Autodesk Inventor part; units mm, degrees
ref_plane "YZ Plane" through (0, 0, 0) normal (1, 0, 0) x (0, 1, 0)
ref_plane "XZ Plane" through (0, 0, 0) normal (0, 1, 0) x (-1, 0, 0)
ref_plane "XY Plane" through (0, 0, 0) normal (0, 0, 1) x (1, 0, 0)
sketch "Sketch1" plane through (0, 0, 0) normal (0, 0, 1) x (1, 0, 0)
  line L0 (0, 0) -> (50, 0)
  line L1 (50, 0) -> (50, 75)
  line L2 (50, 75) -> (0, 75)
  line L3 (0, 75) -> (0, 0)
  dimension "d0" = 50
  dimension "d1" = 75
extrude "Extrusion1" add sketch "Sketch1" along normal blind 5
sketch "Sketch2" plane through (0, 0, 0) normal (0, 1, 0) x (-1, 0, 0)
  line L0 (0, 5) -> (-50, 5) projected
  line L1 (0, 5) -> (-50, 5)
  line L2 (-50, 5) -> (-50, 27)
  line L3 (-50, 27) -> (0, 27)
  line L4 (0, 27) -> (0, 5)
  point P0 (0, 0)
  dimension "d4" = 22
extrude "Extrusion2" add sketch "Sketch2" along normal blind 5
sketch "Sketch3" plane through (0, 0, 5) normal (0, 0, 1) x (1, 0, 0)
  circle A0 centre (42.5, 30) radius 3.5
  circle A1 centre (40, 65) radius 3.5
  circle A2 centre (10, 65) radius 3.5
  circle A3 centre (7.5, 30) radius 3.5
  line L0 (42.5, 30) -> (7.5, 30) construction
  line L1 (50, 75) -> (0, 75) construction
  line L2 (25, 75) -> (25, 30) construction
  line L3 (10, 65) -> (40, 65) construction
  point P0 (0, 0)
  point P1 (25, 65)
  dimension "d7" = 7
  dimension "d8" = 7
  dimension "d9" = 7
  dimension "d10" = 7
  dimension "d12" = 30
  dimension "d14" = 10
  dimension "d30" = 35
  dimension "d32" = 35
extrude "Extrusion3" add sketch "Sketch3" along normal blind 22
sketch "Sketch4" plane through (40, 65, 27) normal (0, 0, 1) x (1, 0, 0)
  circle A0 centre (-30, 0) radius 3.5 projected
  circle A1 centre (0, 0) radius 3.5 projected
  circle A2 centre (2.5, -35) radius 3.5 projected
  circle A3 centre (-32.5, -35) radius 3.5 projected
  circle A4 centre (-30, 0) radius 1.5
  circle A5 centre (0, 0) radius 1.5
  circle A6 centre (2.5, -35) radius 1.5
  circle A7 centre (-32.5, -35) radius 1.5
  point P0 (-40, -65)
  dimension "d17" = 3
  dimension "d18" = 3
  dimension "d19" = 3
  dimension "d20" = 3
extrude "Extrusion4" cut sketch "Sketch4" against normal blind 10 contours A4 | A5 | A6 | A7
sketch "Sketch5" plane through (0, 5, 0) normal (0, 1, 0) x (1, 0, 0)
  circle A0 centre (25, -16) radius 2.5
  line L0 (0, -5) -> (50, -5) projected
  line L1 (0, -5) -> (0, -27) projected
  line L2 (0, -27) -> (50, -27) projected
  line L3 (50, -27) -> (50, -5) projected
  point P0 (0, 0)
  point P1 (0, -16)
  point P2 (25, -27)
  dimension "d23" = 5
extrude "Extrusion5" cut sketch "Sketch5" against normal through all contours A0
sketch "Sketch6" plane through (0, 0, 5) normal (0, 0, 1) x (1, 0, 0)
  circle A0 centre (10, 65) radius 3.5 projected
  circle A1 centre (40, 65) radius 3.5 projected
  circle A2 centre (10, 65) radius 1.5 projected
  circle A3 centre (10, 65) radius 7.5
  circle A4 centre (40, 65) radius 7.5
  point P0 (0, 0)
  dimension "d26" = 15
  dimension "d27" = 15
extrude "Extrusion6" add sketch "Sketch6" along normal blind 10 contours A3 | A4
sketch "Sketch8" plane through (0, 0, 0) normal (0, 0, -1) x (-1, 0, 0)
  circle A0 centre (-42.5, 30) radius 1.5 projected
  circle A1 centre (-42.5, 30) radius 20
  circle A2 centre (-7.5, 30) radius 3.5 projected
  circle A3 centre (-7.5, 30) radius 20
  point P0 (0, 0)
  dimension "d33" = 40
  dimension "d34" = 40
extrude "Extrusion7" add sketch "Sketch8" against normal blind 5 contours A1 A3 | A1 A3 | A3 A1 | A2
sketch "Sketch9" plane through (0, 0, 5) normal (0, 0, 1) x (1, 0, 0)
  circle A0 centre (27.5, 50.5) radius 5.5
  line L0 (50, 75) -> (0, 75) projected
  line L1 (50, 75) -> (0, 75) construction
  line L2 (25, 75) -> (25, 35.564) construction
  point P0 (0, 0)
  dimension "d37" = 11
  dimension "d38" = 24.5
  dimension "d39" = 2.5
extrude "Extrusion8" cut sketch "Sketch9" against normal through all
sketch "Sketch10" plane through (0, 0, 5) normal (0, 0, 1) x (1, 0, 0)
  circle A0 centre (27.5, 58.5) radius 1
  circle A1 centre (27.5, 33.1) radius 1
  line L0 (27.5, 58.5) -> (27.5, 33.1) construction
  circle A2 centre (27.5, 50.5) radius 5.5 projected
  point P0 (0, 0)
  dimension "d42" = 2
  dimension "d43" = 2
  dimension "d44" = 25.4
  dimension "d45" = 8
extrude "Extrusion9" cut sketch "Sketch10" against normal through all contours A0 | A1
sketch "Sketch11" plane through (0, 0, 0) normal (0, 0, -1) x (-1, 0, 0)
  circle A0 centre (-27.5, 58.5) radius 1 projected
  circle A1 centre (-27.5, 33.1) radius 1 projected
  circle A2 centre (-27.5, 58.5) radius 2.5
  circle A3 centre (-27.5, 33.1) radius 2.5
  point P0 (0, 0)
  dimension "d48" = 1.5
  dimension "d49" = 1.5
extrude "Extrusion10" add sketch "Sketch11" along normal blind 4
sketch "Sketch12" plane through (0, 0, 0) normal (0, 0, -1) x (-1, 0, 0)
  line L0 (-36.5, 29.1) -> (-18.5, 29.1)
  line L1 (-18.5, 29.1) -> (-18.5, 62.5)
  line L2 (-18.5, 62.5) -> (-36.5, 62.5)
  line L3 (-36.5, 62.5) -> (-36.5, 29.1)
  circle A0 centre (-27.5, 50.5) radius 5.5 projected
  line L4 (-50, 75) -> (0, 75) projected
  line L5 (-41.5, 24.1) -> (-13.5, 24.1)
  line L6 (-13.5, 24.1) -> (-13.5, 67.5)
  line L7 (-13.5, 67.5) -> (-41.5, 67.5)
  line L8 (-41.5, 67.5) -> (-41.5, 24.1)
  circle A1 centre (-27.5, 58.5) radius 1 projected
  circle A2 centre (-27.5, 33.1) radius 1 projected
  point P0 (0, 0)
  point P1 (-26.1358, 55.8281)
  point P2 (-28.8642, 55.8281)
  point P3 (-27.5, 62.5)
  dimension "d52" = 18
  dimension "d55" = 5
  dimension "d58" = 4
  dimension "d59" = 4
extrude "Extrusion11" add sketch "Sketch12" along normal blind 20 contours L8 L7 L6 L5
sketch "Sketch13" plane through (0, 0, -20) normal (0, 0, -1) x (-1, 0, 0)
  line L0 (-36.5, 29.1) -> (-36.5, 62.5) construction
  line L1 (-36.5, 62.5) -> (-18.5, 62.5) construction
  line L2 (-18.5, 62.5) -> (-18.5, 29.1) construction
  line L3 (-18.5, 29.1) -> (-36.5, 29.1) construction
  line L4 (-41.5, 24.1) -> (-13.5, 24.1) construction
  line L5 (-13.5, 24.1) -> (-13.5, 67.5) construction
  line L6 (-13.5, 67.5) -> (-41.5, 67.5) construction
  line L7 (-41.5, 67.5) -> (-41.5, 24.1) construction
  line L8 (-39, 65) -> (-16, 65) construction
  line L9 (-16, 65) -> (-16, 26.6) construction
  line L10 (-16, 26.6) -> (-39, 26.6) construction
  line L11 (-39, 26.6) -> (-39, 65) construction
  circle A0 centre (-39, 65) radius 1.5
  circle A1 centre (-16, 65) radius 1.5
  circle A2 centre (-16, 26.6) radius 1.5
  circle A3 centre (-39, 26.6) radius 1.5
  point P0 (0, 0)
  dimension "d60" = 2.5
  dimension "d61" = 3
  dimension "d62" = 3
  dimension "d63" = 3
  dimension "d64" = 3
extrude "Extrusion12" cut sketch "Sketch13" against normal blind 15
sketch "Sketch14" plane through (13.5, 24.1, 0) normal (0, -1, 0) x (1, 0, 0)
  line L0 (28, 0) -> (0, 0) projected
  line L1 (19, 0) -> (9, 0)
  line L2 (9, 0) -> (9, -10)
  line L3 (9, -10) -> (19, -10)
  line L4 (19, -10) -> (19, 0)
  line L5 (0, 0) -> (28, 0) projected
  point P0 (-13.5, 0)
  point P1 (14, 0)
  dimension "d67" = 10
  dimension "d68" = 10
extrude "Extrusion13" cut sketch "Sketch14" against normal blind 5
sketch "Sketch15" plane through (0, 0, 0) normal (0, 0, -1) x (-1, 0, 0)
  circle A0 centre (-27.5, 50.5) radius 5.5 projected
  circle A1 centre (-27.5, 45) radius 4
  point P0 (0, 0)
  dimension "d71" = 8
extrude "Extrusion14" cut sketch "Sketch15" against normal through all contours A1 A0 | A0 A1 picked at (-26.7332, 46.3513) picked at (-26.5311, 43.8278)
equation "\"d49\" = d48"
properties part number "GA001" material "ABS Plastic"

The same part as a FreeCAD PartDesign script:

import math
import FreeCAD as App
import Part
import Sketcher
Q = App.Units.Quantity

doc = App.newDocument("Part")
body = doc.addObject("PartDesign::Body", "Body")

sketch1 = doc.addObject("Sketcher::SketchObject", "Sketch")
body.addObject(sketch1)
sketch1.AttachmentSupport = (doc.XY_Plane, [""])
sketch1.MapMode = "FlatFace"
sketch1.addGeometry([
    Part.LineSegment(App.Vector(0, 75, 0), App.Vector(0, 0, 0)),
    Part.LineSegment(App.Vector(0, 0, 0), App.Vector(50, 0, 0)),
    Part.LineSegment(App.Vector(50, 0, 0), App.Vector(50, 75, 0)),
    Part.LineSegment(App.Vector(50, 75, 0), App.Vector(0, 75, 0)),
], False)
sketch1.addConstraint([
    Sketcher.Constraint("Coincident", 0, 2, 1, 1),
    Sketcher.Constraint("Coincident", 1, 2, 2, 1),
    Sketcher.Constraint("Coincident", 2, 2, 3, 1),
    Sketcher.Constraint("Coincident", 3, 2, 0, 1),
    Sketcher.Constraint("Vertical", 0),
    Sketcher.Constraint("Horizontal", 1),
    Sketcher.Constraint("Vertical", 2),
    Sketcher.Constraint("Horizontal", 3),
    Sketcher.Constraint("Coincident", 0, 2, -1, 1),
    Sketcher.Constraint("DistanceX", 1, 1, 1, 2, Q("50 mm")),
    Sketcher.Constraint("DistanceY", 0, 2, 0, 1, Q("75 mm")),
])
pad1 = doc.addObject("PartDesign::Pad", "Pad")
body.addObject(pad1)
pad1.Profile = sketch1
pad1.Length = 5

sketch2 = doc.addObject("Sketcher::SketchObject", "Sketch001")
body.addObject(sketch2)
sketch2.AttachmentSupport = (doc.XZ_Plane, [""])
sketch2.MapMode = "FlatFace"
sketch2.addGeometry([
    Part.LineSegment(App.Vector(50, 5, 0), App.Vector(0, 5, 0)),
    Part.LineSegment(App.Vector(0, 5, 0), App.Vector(0, 27, 0)),
    Part.LineSegment(App.Vector(0, 27, 0), App.Vector(50, 27, 0)),
    Part.LineSegment(App.Vector(50, 27, 0), App.Vector(50, 5, 0)),
], False)
sketch2.addConstraint([
    Sketcher.Constraint("Coincident", 0, 2, 1, 1),
    Sketcher.Constraint("Coincident", 1, 2, 2, 1),
    Sketcher.Constraint("Coincident", 2, 2, 3, 1),
    Sketcher.Constraint("Coincident", 3, 2, 0, 1),
    Sketcher.Constraint("Horizontal", 0),
    Sketcher.Constraint("Vertical", 1),
    Sketcher.Constraint("Horizontal", 2),
    Sketcher.Constraint("Vertical", 3),
    Sketcher.Constraint("PointOnObject", 0, 2, -2),
    Sketcher.Constraint("DistanceY", 1, 1, 1, 2, Q("22 mm")),
    Sketcher.Constraint("DistanceX", 0, 2, 0, 1, Q("50 mm")),
    Sketcher.Constraint("DistanceY", -1, 1, 0, 2, Q("5 mm")),
])
pad2 = doc.addObject("PartDesign::Pad", "Pad001")
body.addObject(pad2)
pad2.Profile = sketch2
pad2.Length = 5
pad2.Reversed = True

sketch3 = doc.addObject("Sketcher::SketchObject", "Sketch002")
body.addObject(sketch3)
sketch3.AttachmentSupport = (doc.XY_Plane, [""])
sketch3.MapMode = "FlatFace"
sketch3.AttachmentOffset = App.Placement(App.Vector(0, 0, 5), App.Rotation())
sketch3.addGeometry([
    Part.Circle(App.Vector(42.5, 30, 0), App.Vector(0, 0, 1), 3.5),
    Part.Circle(App.Vector(40, 65, 0), App.Vector(0, 0, 1), 3.5),
    Part.Circle(App.Vector(10, 65, 0), App.Vector(0, 0, 1), 3.5),
    Part.Circle(App.Vector(7.5, 30, 0), App.Vector(0, 0, 1), 3.5),
], False)
sketch3.addConstraint([
    Sketcher.Constraint("Equal", 0, 1),
    Sketcher.Constraint("Equal", 1, 2),
    Sketcher.Constraint("Equal", 2, 3),
    Sketcher.Constraint("Horizontal", 1, 3, 2, 3),
    Sketcher.Constraint("Horizontal", 0, 3, 3, 3),
    Sketcher.Constraint("Diameter", 0, Q("7 mm")),
    Sketcher.Constraint("DistanceY", -1, 1, 0, 3, Q("30 mm")),
    Sketcher.Constraint("DistanceX", -1, 1, 2, 3, Q("10 mm")),
    Sketcher.Constraint("DistanceY", 0, 3, 1, 3, Q("35 mm")),
    Sketcher.Constraint("DistanceX", 2, 3, 1, 3, Q("30 mm")),
    Sketcher.Constraint("DistanceX", 3, 3, 0, 3, Q("35 mm")),
    Sketcher.Constraint("DistanceX", -1, 1, 0, 3, Q("42.5 mm")),
])
pad3 = doc.addObject("PartDesign::Pad", "Pad002")
body.addObject(pad3)
pad3.Profile = sketch3
pad3.Length = 22

sketch4 = doc.addObject("Sketcher::SketchObject", "Sketch003")
body.addObject(sketch4)
sketch4.AttachmentSupport = (doc.XY_Plane, [""])
sketch4.MapMode = "FlatFace"
sketch4.AttachmentOffset = App.Placement(App.Vector(0, 0, 27), App.Rotation())
sketch4.addGeometry([
    Part.Circle(App.Vector(10, 65, 0), App.Vector(0, 0, 1), 1.5),
    Part.Circle(App.Vector(40, 65, 0), App.Vector(0, 0, 1), 1.5),
    Part.Circle(App.Vector(42.5, 30, 0), App.Vector(0, 0, 1), 1.5),
    Part.Circle(App.Vector(7.5, 30, 0), App.Vector(0, 0, 1), 1.5),
], False)
sketch4.addConstraint([
    Sketcher.Constraint("Equal", 0, 1),
    Sketcher.Constraint("Equal", 1, 2),
    Sketcher.Constraint("Equal", 2, 3),
    Sketcher.Constraint("Horizontal", 0, 3, 1, 3),
    Sketcher.Constraint("Horizontal", 2, 3, 3, 3),
    Sketcher.Constraint("Diameter", 0, Q("3 mm")),
    Sketcher.Constraint("DistanceX", -1, 1, 0, 3, Q("10 mm")),
    Sketcher.Constraint("DistanceY", -1, 1, 0, 3, Q("65 mm")),
    Sketcher.Constraint("DistanceX", -1, 1, 1, 3, Q("40 mm")),
    Sketcher.Constraint("DistanceY", -1, 1, 2, 3, Q("30 mm")),
    Sketcher.Constraint("DistanceX", 3, 3, 2, 3, Q("35 mm")),
    Sketcher.Constraint("DistanceX", -1, 1, 2, 3, Q("42.5 mm")),
])
pocket1 = doc.addObject("PartDesign::Pocket", "Pocket")
body.addObject(pocket1)
pocket1.Profile = sketch4
pocket1.Length = 10

sketch5 = doc.addObject("Sketcher::SketchObject", "Sketch004")
body.addObject(sketch5)
sketch5.AttachmentSupport = (doc.XZ_Plane, [""])
sketch5.MapMode = "FlatFace"
sketch5.AttachmentOffset = App.Placement(App.Vector(0, 0, -5), App.Rotation())
sketch5.addGeometry(Part.Circle(App.Vector(25, 16, 0), App.Vector(0, 0, 1), 2.5), False)
sketch5.addConstraint([
    Sketcher.Constraint("Diameter", 0, Q("5 mm")),
    Sketcher.Constraint("DistanceX", -1, 1, 0, 3, Q("25 mm")),
    Sketcher.Constraint("DistanceY", -1, 1, 0, 3, Q("16 mm")),
])
pocket2 = doc.addObject("PartDesign::Pocket", "Pocket001")
body.addObject(pocket2)
pocket2.Profile = sketch5
pocket2.Type = "ThroughAll"
pocket2.Reversed = True

sketch6 = doc.addObject("Sketcher::SketchObject", "Sketch005")
body.addObject(sketch6)
sketch6.AttachmentSupport = (doc.XY_Plane, [""])
sketch6.MapMode = "FlatFace"
sketch6.AttachmentOffset = App.Placement(App.Vector(0, 0, 5), App.Rotation())
sketch6.addGeometry([
    Part.Circle(App.Vector(10, 65, 0), App.Vector(0, 0, 1), 7.5),
    Part.Circle(App.Vector(10, 65, 0), App.Vector(0, 0, 1), 3.5),
    Part.Circle(App.Vector(40, 65, 0), App.Vector(0, 0, 1), 7.5),
    Part.Circle(App.Vector(40, 65, 0), App.Vector(0, 0, 1), 3.5),
], False)
sketch6.addConstraint([
    Sketcher.Constraint("Coincident", 1, 3, 0, 3),
    Sketcher.Constraint("Coincident", 3, 3, 2, 3),
    Sketcher.Constraint("Equal", 0, 2),
    Sketcher.Constraint("Equal", 1, 3),
    Sketcher.Constraint("Horizontal", 1, 3, 2, 3),
    Sketcher.Constraint("Diameter", 0, Q("15 mm")),
    Sketcher.Constraint("Diameter", 1, Q("7 mm")),
    Sketcher.Constraint("DistanceX", -1, 1, 0, 3, Q("10 mm")),
    Sketcher.Constraint("DistanceY", -1, 1, 0, 3, Q("65 mm")),
    Sketcher.Constraint("DistanceX", -1, 1, 2, 3, Q("40 mm")),
])
pad4 = doc.addObject("PartDesign::Pad", "Pad003")
body.addObject(pad4)
pad4.Profile = sketch6
pad4.Length = 10

sketch7 = doc.addObject("Sketcher::SketchObject", "Sketch006")
body.addObject(sketch7)
sketch7.AttachmentSupport = (doc.XY_Plane, [""])
sketch7.MapMode = "FlatFace"
sketch7.addGeometry([
    Part.ArcOfCircle(Part.Circle(App.Vector(42.5, 30, 0), App.Vector(0, 0, 1), 20), math.radians(-151), math.radians(151)),
    Part.ArcOfCircle(Part.Circle(App.Vector(7.5, 30, 0), App.Vector(0, 0, 1), 20), math.radians(29), math.radians(331)),
    Part.Circle(App.Vector(42.5, 30, 0), App.Vector(0, 0, 1), 1.5),
], False)
sketch7.addConstraint([
    Sketcher.Constraint("Coincident", 0, 1, 1, 2),
    Sketcher.Constraint("Coincident", 1, 1, 0, 2),
    Sketcher.Constraint("Coincident", 2, 3, 0, 3),
    Sketcher.Constraint("Equal", 0, 1),
    Sketcher.Constraint("Horizontal", 0, 3, 1, 3),
    Sketcher.Constraint("Radius", 0, Q("20 mm")),
    Sketcher.Constraint("Diameter", 2, Q("3 mm")),
    Sketcher.Constraint("DistanceY", -1, 1, 0, 3, Q("30 mm")),
    Sketcher.Constraint("DistanceX", -1, 1, 0, 1, Q("25 mm")),
    Sketcher.Constraint("DistanceX", 1, 3, 0, 3, Q("35 mm")),
])
pad5 = doc.addObject("PartDesign::Pad", "Pad004")
body.addObject(pad5)
pad5.Profile = sketch7
pad5.Length = 5

sketch8 = doc.addObject("Sketcher::SketchObject", "Sketch007")
body.addObject(sketch8)
sketch8.AttachmentSupport = (doc.XY_Plane, [""])
sketch8.MapMode = "FlatFace"
sketch8.AttachmentOffset = App.Placement(App.Vector(0, 0, 5), App.Rotation())
sketch8.addGeometry(Part.Circle(App.Vector(28, 50, 0), App.Vector(0, 0, 1), 6), False)
sketch8.addConstraint([
    Sketcher.Constraint("Diameter", 0, Q("11 mm")),
    Sketcher.Constraint("DistanceX", -1, 1, 0, 3, Q("27.5 mm")),
    Sketcher.Constraint("DistanceY", -1, 1, 0, 3, Q("50.5 mm")),
])
pocket3 = doc.addObject("PartDesign::Pocket", "Pocket002")
body.addObject(pocket3)
pocket3.Profile = sketch8
pocket3.Type = "ThroughAll"

sketch9 = doc.addObject("Sketcher::SketchObject", "Sketch008")
body.addObject(sketch9)
sketch9.AttachmentSupport = (doc.XY_Plane, [""])
sketch9.MapMode = "FlatFace"
sketch9.AttachmentOffset = App.Placement(App.Vector(0, 0, 5), App.Rotation())
sketch9.addGeometry([
    Part.Circle(App.Vector(27.5, 58.5, 0), App.Vector(0, 0, 1), 1),
    Part.Circle(App.Vector(27.5, 33.1, 0), App.Vector(0, 0, 1), 1),
], False)
sketch9.addConstraint([
    Sketcher.Constraint("Equal", 0, 1),
    Sketcher.Constraint("Vertical", 0, 3, 1, 3),
    Sketcher.Constraint("Diameter", 0, Q("2 mm")),
    Sketcher.Constraint("DistanceY", 1, 3, 0, 3, Q("25.4 mm")),
    Sketcher.Constraint("DistanceX", -1, 1, 0, 3, Q("27.5 mm")),
    Sketcher.Constraint("DistanceY", -1, 1, 0, 3, Q("58.5 mm")),
])
pocket4 = doc.addObject("PartDesign::Pocket", "Pocket003")
body.addObject(pocket4)
pocket4.Profile = sketch9
pocket4.Type = "ThroughAll"

sketch10 = doc.addObject("Sketcher::SketchObject", "Sketch009")
body.addObject(sketch10)
sketch10.AttachmentSupport = (doc.XY_Plane, [""])
sketch10.MapMode = "FlatFace"
sketch10.addGeometry([
    Part.Circle(App.Vector(27.5, 58.5, 0), App.Vector(0, 0, 1), 2.5),
    Part.Circle(App.Vector(27.5, 58.5, 0), App.Vector(0, 0, 1), 1),
    Part.Circle(App.Vector(27.5, 33.1, 0), App.Vector(0, 0, 1), 2.5),
    Part.Circle(App.Vector(27.5, 33.1, 0), App.Vector(0, 0, 1), 1),
], False)
sketch10.addConstraint([
    Sketcher.Constraint("Coincident", 1, 3, 0, 3),
    Sketcher.Constraint("Coincident", 3, 3, 2, 3),
    Sketcher.Constraint("Equal", 0, 2),
    Sketcher.Constraint("Equal", 1, 3),
    Sketcher.Constraint("Vertical", 1, 3, 2, 3),
    Sketcher.Constraint("Diameter", 0, Q("5 mm")),
    Sketcher.Constraint("Diameter", 1, Q("2 mm")),
    Sketcher.Constraint("DistanceX", -1, 1, 0, 3, Q("27.5 mm")),
    Sketcher.Constraint("DistanceY", -1, 1, 0, 3, Q("58.5 mm")),
    Sketcher.Constraint("DistanceY", -1, 1, 2, 3, Q("33.1 mm")),
])
pad6 = doc.addObject("PartDesign::Pad", "Pad005")
body.addObject(pad6)
pad6.Profile = sketch10
pad6.Length = 4
pad6.Reversed = True

sketch11 = doc.addObject("Sketcher::SketchObject", "Sketch010")
body.addObject(sketch11)
sketch11.AttachmentSupport = (doc.XY_Plane, [""])
sketch11.MapMode = "FlatFace"
sketch11.addGeometry([
    Part.LineSegment(App.Vector(42, 68, 0), App.Vector(42, 24, 0)),
    Part.LineSegment(App.Vector(42, 24, 0), App.Vector(14, 24, 0)),
    Part.LineSegment(App.Vector(14, 24, 0), App.Vector(14, 68, 0)),
    Part.LineSegment(App.Vector(14, 68, 0), App.Vector(42, 68, 0)),
    Part.LineSegment(App.Vector(18, 29, 0), App.Vector(36, 29, 0)),
    Part.LineSegment(App.Vector(36, 29, 0), App.Vector(36, 62, 0)),
    Part.LineSegment(App.Vector(36, 62, 0), App.Vector(18, 62, 0)),
    Part.LineSegment(App.Vector(18, 62, 0), App.Vector(18, 29, 0)),
], False)
sketch11.addConstraint([
    Sketcher.Constraint("Coincident", 0, 2, 1, 1),
    Sketcher.Constraint("Coincident", 1, 2, 2, 1),
    Sketcher.Constraint("Coincident", 2, 2, 3, 1),
    Sketcher.Constraint("Coincident", 3, 2, 0, 1),
    Sketcher.Constraint("Coincident", 4, 2, 5, 1),
    Sketcher.Constraint("Coincident", 5, 2, 6, 1),
    Sketcher.Constraint("Coincident", 6, 2, 7, 1),
    Sketcher.Constraint("Coincident", 7, 2, 4, 1),
    Sketcher.Constraint("Vertical", 0),
    Sketcher.Constraint("Horizontal", 1),
    Sketcher.Constraint("Vertical", 2),
    Sketcher.Constraint("Horizontal", 3),
    Sketcher.Constraint("Horizontal", 4),
    Sketcher.Constraint("Vertical", 5),
    Sketcher.Constraint("Horizontal", 6),
    Sketcher.Constraint("Vertical", 7),
    Sketcher.Constraint("DistanceX", 4, 1, 4, 2, Q("18 mm")),
    Sketcher.Constraint("DistanceX", 4, 2, 0, 2, Q("5 mm")),
    Sketcher.Constraint("DistanceY", 0, 2, 4, 2, Q("5 mm")),
    Sketcher.Constraint("DistanceY", 5, 2, 3, 2, Q("5 mm")),
    Sketcher.Constraint("DistanceX", 2, 2, 6, 2, Q("5 mm")),
    Sketcher.Constraint("DistanceY", 0, 2, 0, 1, Q("43.4 mm")),
    Sketcher.Constraint("DistanceX", -1, 1, 0, 2, Q("41.5 mm")),
    Sketcher.Constraint("DistanceY", -1, 1, 0, 2, Q("24.1 mm")),
])
pad7 = doc.addObject("PartDesign::Pad", "Pad006")
body.addObject(pad7)
pad7.Profile = sketch11
pad7.Length = 20
pad7.Reversed = True

sketch12 = doc.addObject("Sketcher::SketchObject", "Sketch011")
body.addObject(sketch12)
sketch12.AttachmentSupport = (doc.XY_Plane, [""])
sketch12.MapMode = "FlatFace"
sketch12.AttachmentOffset = App.Placement(App.Vector(0, 0, -20), App.Rotation())
sketch12.addGeometry([
    Part.Circle(App.Vector(39, 65, 0), App.Vector(0, 0, 1), 1.5),
    Part.Circle(App.Vector(16, 65, 0), App.Vector(0, 0, 1), 1.5),
    Part.Circle(App.Vector(16, 26.6, 0), App.Vector(0, 0, 1), 1.5),
    Part.Circle(App.Vector(39, 26.6, 0), App.Vector(0, 0, 1), 1.5),
], False)
sketch12.addConstraint([
    Sketcher.Constraint("Equal", 0, 1),
    Sketcher.Constraint("Equal", 1, 2),
    Sketcher.Constraint("Equal", 2, 3),
    Sketcher.Constraint("Horizontal", 0, 3, 1, 3),
    Sketcher.Constraint("Horizontal", 2, 3, 3, 3),
    Sketcher.Constraint("Vertical", 1, 3, 2, 3),
    Sketcher.Constraint("Vertical", 0, 3, 3, 3),
    Sketcher.Constraint("Diameter", 0, Q("3 mm")),
    Sketcher.Constraint("DistanceX", -1, 1, 0, 3, Q("39 mm")),
    Sketcher.Constraint("DistanceY", -1, 1, 0, 3, Q("65 mm")),
    Sketcher.Constraint("DistanceX", -1, 1, 1, 3, Q("16 mm")),
    Sketcher.Constraint("DistanceY", -1, 1, 2, 3, Q("26.6 mm")),
])
pocket5 = doc.addObject("PartDesign::Pocket", "Pocket004")
body.addObject(pocket5)
pocket5.Profile = sketch12
pocket5.Length = 15
pocket5.Reversed = True

sketch13 = doc.addObject("Sketcher::SketchObject", "Sketch012")
body.addObject(sketch13)
sketch13.AttachmentSupport = (doc.XZ_Plane, [""])
sketch13.MapMode = "FlatFace"
sketch13.AttachmentOffset = App.Placement(App.Vector(0, 0, -24.1), App.Rotation())
sketch13.addGeometry([
    Part.LineSegment(App.Vector(32, -10, 0), App.Vector(32, 0, 0)),
    Part.LineSegment(App.Vector(32, 0, 0), App.Vector(22, 0, 0)),
    Part.LineSegment(App.Vector(22, 0, 0), App.Vector(22, -10, 0)),
    Part.LineSegment(App.Vector(22, -10, 0), App.Vector(32, -10, 0)),
], False)
sketch13.addConstraint([
    Sketcher.Constraint("Coincident", 0, 2, 1, 1),
    Sketcher.Constraint("Coincident", 1, 2, 2, 1),
    Sketcher.Constraint("Coincident", 2, 2, 3, 1),
    Sketcher.Constraint("Coincident", 3, 2, 0, 1),
    Sketcher.Constraint("Vertical", 0),
    Sketcher.Constraint("Horizontal", 1),
    Sketcher.Constraint("Vertical", 2),
    Sketcher.Constraint("Horizontal", 3),
    Sketcher.Constraint("PointOnObject", 0, 2, -1),
    Sketcher.Constraint("Equal", 3, 0),
    Sketcher.Constraint("DistanceX", 1, 2, 1, 1, Q("10 mm")),
    Sketcher.Constraint("DistanceX", -1, 1, 0, 2, Q("32.5 mm")),
])
pocket6 = doc.addObject("PartDesign::Pocket", "Pocket005")
body.addObject(pocket6)
pocket6.Profile = sketch13
pocket6.Length = 5

sketch14 = doc.addObject("Sketcher::SketchObject", "Sketch013")
body.addObject(sketch14)
sketch14.AttachmentSupport = (doc.XY_Plane, [""])
sketch14.MapMode = "FlatFace"
sketch14.addGeometry(Part.Circle(App.Vector(27.5, 45, 0), App.Vector(0, 0, 1), 4), False)
sketch14.addConstraint([
    Sketcher.Constraint("Diameter", 0, Q("8 mm")),
    Sketcher.Constraint("DistanceY", -1, 1, 0, 3, Q("45 mm")),
    Sketcher.Constraint("DistanceX", -1, 1, 0, 3, Q("27.5 mm")),
])
pocket7 = doc.addObject("PartDesign::Pocket", "Pocket006")
body.addObject(pocket7)
pocket7.Profile = sketch14
pocket7.Type = "ThroughAll"
pocket7.Reversed = True

doc.recompute()
